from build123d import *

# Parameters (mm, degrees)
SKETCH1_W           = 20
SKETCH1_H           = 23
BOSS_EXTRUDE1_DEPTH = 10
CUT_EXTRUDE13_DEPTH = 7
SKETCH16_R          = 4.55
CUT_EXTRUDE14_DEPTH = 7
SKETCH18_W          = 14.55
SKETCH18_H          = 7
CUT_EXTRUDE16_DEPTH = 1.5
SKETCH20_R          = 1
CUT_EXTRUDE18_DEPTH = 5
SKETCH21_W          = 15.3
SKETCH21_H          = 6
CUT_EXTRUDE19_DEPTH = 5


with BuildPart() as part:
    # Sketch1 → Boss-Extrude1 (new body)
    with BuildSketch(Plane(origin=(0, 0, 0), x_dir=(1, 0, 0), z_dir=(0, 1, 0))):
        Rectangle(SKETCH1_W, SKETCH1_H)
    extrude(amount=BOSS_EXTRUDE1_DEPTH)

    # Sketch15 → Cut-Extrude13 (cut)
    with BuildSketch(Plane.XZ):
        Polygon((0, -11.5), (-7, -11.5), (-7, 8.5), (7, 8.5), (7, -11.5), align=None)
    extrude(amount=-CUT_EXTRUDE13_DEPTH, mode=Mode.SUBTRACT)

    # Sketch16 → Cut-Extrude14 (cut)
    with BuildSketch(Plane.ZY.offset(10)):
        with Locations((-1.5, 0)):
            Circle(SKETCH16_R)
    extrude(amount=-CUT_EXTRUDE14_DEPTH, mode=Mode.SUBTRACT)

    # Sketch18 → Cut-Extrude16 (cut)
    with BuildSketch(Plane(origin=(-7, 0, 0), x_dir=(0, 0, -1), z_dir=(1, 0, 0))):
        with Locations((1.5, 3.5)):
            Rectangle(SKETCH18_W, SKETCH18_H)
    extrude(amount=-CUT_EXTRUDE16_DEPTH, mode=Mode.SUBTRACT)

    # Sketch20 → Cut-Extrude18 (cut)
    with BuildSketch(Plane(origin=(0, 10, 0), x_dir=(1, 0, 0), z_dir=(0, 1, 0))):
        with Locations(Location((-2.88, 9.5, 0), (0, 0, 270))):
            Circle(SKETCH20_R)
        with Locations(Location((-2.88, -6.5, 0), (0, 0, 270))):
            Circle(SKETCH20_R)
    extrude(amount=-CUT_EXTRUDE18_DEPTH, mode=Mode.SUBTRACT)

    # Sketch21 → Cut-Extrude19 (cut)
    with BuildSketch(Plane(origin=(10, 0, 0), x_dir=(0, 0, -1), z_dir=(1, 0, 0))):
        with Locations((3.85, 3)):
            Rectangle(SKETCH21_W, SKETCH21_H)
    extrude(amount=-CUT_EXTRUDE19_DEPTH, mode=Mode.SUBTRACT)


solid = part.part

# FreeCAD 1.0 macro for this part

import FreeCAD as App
import Part
import Sketcher

V = App.Vector

doc = App.newDocument("Part")
body = doc.addObject("PartDesign::Body", "Body")

sketch1 = body.newObject("Sketcher::SketchObject", "Sketch")
sketch1.AttachmentSupport = (doc.getObject("XZ_Plane"), [""])
sketch1.MapMode = "FlatFace"
sketch1.addGeometry(Part.LineSegment(V(-10, -11.5, 0), V(-10, 11.5, 0)), False)
sketch1.addGeometry(Part.LineSegment(V(-10, 11.5, 0), V(10, 11.5, 0)), False)
sketch1.addGeometry(Part.LineSegment(V(10, 11.5, 0), V(10, -11.5, 0)), False)
sketch1.addGeometry(Part.LineSegment(V(10, -11.5, 0), V(-10, -11.5, 0)), False)
sketch1.addConstraint(Sketcher.Constraint("Coincident", 0, 2, 1, 1))
sketch1.addConstraint(Sketcher.Constraint("Coincident", 1, 2, 2, 1))
sketch1.addConstraint(Sketcher.Constraint("Coincident", 2, 2, 3, 1))
sketch1.addConstraint(Sketcher.Constraint("Coincident", 3, 2, 0, 1))
sketch1.addConstraint(Sketcher.Constraint("Vertical", 0))
sketch1.addConstraint(Sketcher.Constraint("Horizontal", 1))
sketch1.addConstraint(Sketcher.Constraint("Vertical", 2))
sketch1.addConstraint(Sketcher.Constraint("Horizontal", 3))
sketch1.addConstraint(Sketcher.Constraint("Symmetric", 0, 2, 2, 2, -1, 1))
sketch1.addConstraint(Sketcher.Constraint("DistanceX", 1, 1, 1, 2, 20.0))
sketch1.addConstraint(Sketcher.Constraint("DistanceY", 0, 1, 0, 2, 23.0))
pad1 = body.newObject("PartDesign::Pad", "Pad")
pad1.Profile = sketch1
pad1.Length = 10
pad1.Reversed = True

sketch2 = body.newObject("Sketcher::SketchObject", "Sketch001")
sketch2.AttachmentSupport = (doc.getObject("XZ_Plane"), [""])
sketch2.MapMode = "FlatFace"
sketch2.addGeometry(Part.LineSegment(V(-7, -11.5, 0), V(7, -11.5, 0)), False)
sketch2.addGeometry(Part.LineSegment(V(7, -11.5, 0), V(7, 8.5, 0)), False)
sketch2.addGeometry(Part.LineSegment(V(7, 8.5, 0), V(-7, 8.5, 0)), False)
sketch2.addGeometry(Part.LineSegment(V(-7, 8.5, 0), V(-7, -11.5, 0)), False)
sketch2.addConstraint(Sketcher.Constraint("Coincident", 0, 2, 1, 1))
sketch2.addConstraint(Sketcher.Constraint("Coincident", 1, 2, 2, 1))
sketch2.addConstraint(Sketcher.Constraint("Coincident", 2, 2, 3, 1))
sketch2.addConstraint(Sketcher.Constraint("Coincident", 3, 2, 0, 1))
sketch2.addConstraint(Sketcher.Constraint("Horizontal", 0))
sketch2.addConstraint(Sketcher.Constraint("Vertical", 1))
sketch2.addConstraint(Sketcher.Constraint("Horizontal", 2))
sketch2.addConstraint(Sketcher.Constraint("Vertical", 3))
sketch2.addConstraint(Sketcher.Constraint("DistanceX", 0, 1, 0, 2, 14.0))
sketch2.addConstraint(Sketcher.Constraint("DistanceY", 1, 1, 1, 2, 20.0))
sketch2.addConstraint(Sketcher.Constraint("DistanceX", -1, 1, 0, 2, 7.0))
sketch2.addConstraint(Sketcher.Constraint("DistanceY", 0, 2, -1, 1, 11.5))
pocket1 = body.newObject("PartDesign::Pocket", "Pocket")
pocket1.Profile = sketch2
pocket1.Length = 7

sketch3 = body.newObject("Sketcher::SketchObject", "Sketch002")
sketch3.AttachmentSupport = (doc.getObject("YZ_Plane"), [""])
sketch3.MapMode = "FlatFace"
sketch3.AttachmentOffset = App.Placement(V(0, 0, -10), App.Rotation())
sketch3.addGeometry(Part.Circle(V(0, -1.5, 0), V(0, 0, 1), 4.55), False)
sketch3.addConstraint(Sketcher.Constraint("PointOnObject", 0, 3, -2))
sketch3.addConstraint(Sketcher.Constraint("Diameter", 0, 9.1))
sketch3.addConstraint(Sketcher.Constraint("DistanceY", 0, 3, -1, 1, 1.5))
pocket2 = body.newObject("PartDesign::Pocket", "Pocket001")
pocket2.Profile = sketch3
pocket2.Length = 7
pocket2.Reversed = True

sketch4 = body.newObject("Sketcher::SketchObject", "Sketch003")
sketch4.AttachmentSupport = (doc.getObject("YZ_Plane"), [""])
sketch4.MapMode = "FlatFace"
sketch4.AttachmentOffset = App.Placement(V(0, 0, -7), App.Rotation())
sketch4.addGeometry(Part.LineSegment(V(7, 5.775, 0), V(0, 5.775, 0)), False)
sketch4.addGeometry(Part.LineSegment(V(0, 5.775, 0), V(0, -8.775, 0)), False)
sketch4.addGeometry(Part.LineSegment(V(0, -8.775, 0), V(7, -8.775, 0)), False)
sketch4.addGeometry(Part.LineSegment(V(7, -8.775, 0), V(7, 5.775, 0)), False)
sketch4.addConstraint(Sketcher.Constraint("Coincident", 0, 2, 1, 1))
sketch4.addConstraint(Sketcher.Constraint("Coincident", 1, 2, 2, 1))
sketch4.addConstraint(Sketcher.Constraint("Coincident", 2, 2, 3, 1))
sketch4.addConstraint(Sketcher.Constraint("Coincident", 3, 2, 0, 1))
sketch4.addConstraint(Sketcher.Constraint("Horizontal", 0))
sketch4.addConstraint(Sketcher.Constraint("Vertical", 1))
sketch4.addConstraint(Sketcher.Constraint("Horizontal", 2))
sketch4.addConstraint(Sketcher.Constraint("Vertical", 3))
sketch4.addConstraint(Sketcher.Constraint("PointOnObject", 0, 2, -2))
sketch4.addConstraint(Sketcher.Constraint("DistanceX", 0, 2, 0, 1, 7.0))
sketch4.addConstraint(Sketcher.Constraint("DistanceY", 1, 2, 1, 1, 14.55))
sketch4.addConstraint(Sketcher.Constraint("DistanceY", -1, 1, 0, 2, 5.775))
pocket3 = body.newObject("PartDesign::Pocket", "Pocket002")
pocket3.Profile = sketch4
pocket3.Length = 1.5

sketch5 = body.newObject("Sketcher::SketchObject", "Sketch004")
sketch5.AttachmentSupport = (doc.getObject("XZ_Plane"), [""])
sketch5.MapMode = "FlatFace"
sketch5.AttachmentOffset = App.Placement(V(0, 0, -10), App.Rotation())
sketch5.addGeometry(Part.Circle(V(-2.88, -9.5, 0), V(0, 0, 1), 1), False)
sketch5.addGeometry(Part.Circle(V(-2.88, 6.5, 0), V(0, 0, 1), 1), False)
sketch5.addConstraint(Sketcher.Constraint("Equal", 0, 1))
sketch5.addConstraint(Sketcher.Constraint("Vertical", 0, 3, 1, 3))
sketch5.addConstraint(Sketcher.Constraint("Diameter", 0, 2.0))
sketch5.addConstraint(Sketcher.Constraint("DistanceY", 0, 3, 1, 3, 16.0))
sketch5.addConstraint(Sketcher.Constraint("DistanceY", 0, 3, -1, 1, 9.5))
sketch5.addConstraint(Sketcher.Constraint("DistanceX", 0, 3, -1, 1, 2.88))
pocket4 = body.newObject("PartDesign::Pocket", "Pocket003")
pocket4.Profile = sketch5
pocket4.Length = 5
pocket4.Reversed = True

sketch6 = body.newObject("Sketcher::SketchObject", "Sketch005")
sketch6.AttachmentSupport = (doc.getObject("YZ_Plane"), [""])
sketch6.MapMode = "FlatFace"
sketch6.AttachmentOffset = App.Placement(V(0, 0, 10), App.Rotation())
sketch6.addGeometry(Part.LineSegment(V(6, 3.8, 0), V(0, 3.8, 0)), False)
sketch6.addGeometry(Part.LineSegment(V(0, 3.8, 0), V(0, -11.5, 0)), False)
sketch6.addGeometry(Part.LineSegment(V(0, -11.5, 0), V(6, -11.5, 0)), False)
sketch6.addGeometry(Part.LineSegment(V(6, -11.5, 0), V(6, 3.8, 0)), False)
sketch6.addConstraint(Sketcher.Constraint("Coincident", 0, 2, 1, 1))
sketch6.addConstraint(Sketcher.Constraint("Coincident", 1, 2, 2, 1))
sketch6.addConstraint(Sketcher.Constraint("Coincident", 2, 2, 3, 1))
sketch6.addConstraint(Sketcher.Constraint("Coincident", 3, 2, 0, 1))
sketch6.addConstraint(Sketcher.Constraint("Horizontal", 0))
sketch6.addConstraint(Sketcher.Constraint("Vertical", 1))
sketch6.addConstraint(Sketcher.Constraint("Horizontal", 2))
sketch6.addConstraint(Sketcher.Constraint("Vertical", 3))
sketch6.addConstraint(Sketcher.Constraint("PointOnObject", 0, 2, -2))
sketch6.addConstraint(Sketcher.Constraint("DistanceX", 0, 2, 0, 1, 6.0))
sketch6.addConstraint(Sketcher.Constraint("DistanceY", 1, 2, 1, 1, 15.3))
sketch6.addConstraint(Sketcher.Constraint("DistanceY", -1, 1, 0, 2, 3.8))
pocket5 = body.newObject("PartDesign::Pocket", "Pocket004")
pocket5.Profile = sketch6
pocket5.Length = 5

doc.recompute()
